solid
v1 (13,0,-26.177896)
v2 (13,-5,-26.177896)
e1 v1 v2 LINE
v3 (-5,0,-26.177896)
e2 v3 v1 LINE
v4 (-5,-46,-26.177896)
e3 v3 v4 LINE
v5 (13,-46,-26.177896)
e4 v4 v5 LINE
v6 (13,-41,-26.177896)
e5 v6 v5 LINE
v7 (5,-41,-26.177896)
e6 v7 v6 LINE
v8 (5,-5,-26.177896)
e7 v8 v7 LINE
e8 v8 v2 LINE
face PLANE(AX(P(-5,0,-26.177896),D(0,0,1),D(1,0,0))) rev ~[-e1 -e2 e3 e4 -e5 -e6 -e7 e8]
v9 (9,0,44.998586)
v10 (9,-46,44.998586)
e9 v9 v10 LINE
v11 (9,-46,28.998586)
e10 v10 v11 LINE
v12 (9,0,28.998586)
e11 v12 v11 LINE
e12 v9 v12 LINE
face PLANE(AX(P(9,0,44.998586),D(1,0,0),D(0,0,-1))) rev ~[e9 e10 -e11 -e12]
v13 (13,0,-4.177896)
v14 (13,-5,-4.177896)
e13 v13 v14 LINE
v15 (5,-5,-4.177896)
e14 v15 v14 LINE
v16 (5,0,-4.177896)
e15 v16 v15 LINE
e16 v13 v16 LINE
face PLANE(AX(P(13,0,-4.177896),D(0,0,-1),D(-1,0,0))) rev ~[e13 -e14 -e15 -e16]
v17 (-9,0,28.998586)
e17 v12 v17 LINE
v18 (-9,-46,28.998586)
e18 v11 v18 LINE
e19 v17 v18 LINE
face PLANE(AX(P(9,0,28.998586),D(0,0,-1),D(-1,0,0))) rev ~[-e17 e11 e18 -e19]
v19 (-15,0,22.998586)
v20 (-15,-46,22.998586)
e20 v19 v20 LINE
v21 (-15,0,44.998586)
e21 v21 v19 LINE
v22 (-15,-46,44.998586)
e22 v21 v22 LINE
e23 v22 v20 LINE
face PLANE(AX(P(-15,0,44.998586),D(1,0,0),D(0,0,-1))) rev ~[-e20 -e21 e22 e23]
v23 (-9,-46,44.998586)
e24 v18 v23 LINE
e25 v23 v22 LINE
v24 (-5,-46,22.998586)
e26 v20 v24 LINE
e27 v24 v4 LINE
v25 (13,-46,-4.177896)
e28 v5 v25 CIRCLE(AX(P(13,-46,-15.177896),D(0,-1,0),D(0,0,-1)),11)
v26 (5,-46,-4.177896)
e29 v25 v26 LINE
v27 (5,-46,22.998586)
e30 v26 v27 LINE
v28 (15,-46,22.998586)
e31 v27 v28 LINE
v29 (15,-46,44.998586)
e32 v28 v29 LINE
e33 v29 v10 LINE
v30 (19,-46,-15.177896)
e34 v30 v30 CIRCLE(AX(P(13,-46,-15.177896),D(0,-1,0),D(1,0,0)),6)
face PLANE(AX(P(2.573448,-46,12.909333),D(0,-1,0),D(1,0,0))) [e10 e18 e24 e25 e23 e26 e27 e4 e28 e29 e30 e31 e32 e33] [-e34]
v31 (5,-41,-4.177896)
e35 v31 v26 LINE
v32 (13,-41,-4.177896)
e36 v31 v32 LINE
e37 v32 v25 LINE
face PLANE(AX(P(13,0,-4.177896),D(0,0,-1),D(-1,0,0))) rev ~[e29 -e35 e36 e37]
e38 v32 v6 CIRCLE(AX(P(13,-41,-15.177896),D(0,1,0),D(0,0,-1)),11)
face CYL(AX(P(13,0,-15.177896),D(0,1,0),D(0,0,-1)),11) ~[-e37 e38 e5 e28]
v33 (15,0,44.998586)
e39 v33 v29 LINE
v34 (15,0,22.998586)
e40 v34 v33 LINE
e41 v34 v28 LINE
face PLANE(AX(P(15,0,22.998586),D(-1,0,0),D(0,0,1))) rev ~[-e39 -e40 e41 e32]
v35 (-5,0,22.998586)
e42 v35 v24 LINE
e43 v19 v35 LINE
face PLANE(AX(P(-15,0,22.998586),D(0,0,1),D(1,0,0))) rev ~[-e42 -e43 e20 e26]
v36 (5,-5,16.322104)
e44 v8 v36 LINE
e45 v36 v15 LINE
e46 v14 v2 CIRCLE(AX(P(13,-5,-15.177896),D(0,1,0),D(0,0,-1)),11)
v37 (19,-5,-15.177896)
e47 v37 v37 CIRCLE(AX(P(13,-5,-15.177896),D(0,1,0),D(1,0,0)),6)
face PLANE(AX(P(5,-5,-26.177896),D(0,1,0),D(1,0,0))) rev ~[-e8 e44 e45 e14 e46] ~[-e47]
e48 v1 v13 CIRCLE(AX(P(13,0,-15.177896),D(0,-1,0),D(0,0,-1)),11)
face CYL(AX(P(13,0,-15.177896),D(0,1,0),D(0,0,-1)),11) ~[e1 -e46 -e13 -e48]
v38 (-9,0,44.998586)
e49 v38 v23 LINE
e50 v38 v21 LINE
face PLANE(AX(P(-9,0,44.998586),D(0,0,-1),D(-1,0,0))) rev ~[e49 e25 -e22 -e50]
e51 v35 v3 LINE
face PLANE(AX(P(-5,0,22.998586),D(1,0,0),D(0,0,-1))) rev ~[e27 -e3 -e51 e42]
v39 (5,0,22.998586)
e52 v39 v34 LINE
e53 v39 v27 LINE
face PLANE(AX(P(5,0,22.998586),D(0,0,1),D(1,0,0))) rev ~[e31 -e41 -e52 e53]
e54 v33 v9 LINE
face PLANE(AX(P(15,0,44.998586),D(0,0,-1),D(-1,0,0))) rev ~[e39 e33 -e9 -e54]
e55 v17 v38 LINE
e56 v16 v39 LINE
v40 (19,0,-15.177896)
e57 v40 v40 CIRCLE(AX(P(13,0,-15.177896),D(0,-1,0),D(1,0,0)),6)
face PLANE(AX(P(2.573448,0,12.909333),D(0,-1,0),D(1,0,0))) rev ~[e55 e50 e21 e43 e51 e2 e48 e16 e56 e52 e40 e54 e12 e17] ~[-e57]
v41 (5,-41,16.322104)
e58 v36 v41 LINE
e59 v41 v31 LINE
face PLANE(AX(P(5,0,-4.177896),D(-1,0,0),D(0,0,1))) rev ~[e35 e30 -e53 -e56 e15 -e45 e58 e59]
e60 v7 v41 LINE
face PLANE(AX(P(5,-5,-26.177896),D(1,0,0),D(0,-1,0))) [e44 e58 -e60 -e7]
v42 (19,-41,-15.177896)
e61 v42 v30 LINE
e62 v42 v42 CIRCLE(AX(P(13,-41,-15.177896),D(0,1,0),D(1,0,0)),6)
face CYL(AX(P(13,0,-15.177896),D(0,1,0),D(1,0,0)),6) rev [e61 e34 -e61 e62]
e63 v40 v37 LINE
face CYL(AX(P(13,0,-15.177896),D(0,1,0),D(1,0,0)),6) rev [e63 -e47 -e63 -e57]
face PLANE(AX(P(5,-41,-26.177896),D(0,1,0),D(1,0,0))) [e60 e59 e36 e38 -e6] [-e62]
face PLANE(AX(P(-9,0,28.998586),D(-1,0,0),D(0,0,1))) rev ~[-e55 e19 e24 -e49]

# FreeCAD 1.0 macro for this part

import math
import FreeCAD as App
import Part
import Sketcher
from FreeCAD import Vector
Q = App.Units.Quantity


def add_polygon(sketch, points):
    """Adds a closed chain of lines whose ends are joined by coincident constraints."""
    first, n = sketch.GeometryCount, len(points)
    for a, b in zip(points, points[1:] + points[:1]):
        sketch.addGeometry(Part.LineSegment(App.Vector(*a, 0), App.Vector(*b, 0)), False)
    for i in range(n):
        sketch.addConstraint(Sketcher.Constraint("Coincident", first + i, 2, first + (i + 1) % n, 1))

doc = App.newDocument("Part")
body = doc.addObject("PartDesign::Body", "Body")

# Sketch on XZ plane
sketch1 = body.newObject("Sketcher::SketchObject", "Sketch")
sketch1.AttachmentSupport = (doc.getObject("XZ_Plane"), [""])
sketch1.MapMode = "FlatFace"
sketch1.addGeometry(Part.LineSegment(Vector(-9, 45, 0), Vector(-15, 45, 0)), False)
sketch1.addGeometry(Part.LineSegment(Vector(-15, 45, 0), Vector(-15, 23, 0)), False)
sketch1.addGeometry(Part.LineSegment(Vector(-15, 23, 0), Vector(-5, 23, 0)), False)
sketch1.addGeometry(Part.LineSegment(Vector(-5, 23, 0), Vector(-5, -26, 0)), False)
sketch1.addGeometry(Part.LineSegment(Vector(-5, -26, 0), Vector(13, -26, 0)), False)
sketch1.addGeometry(Part.ArcOfCircle(Part.Circle(Vector(13, -15, 0), Vector(0, 0, 1), 11), math.radians(-90), math.radians(90)), False)
sketch1.addGeometry(Part.LineSegment(Vector(13, -4, 0), Vector(5, -4, 0)), False)
sketch1.addGeometry(Part.LineSegment(Vector(5, -4, 0), Vector(5, 23, 0)), False)
sketch1.addGeometry(Part.LineSegment(Vector(5, 23, 0), Vector(15, 23, 0)), False)
sketch1.addGeometry(Part.LineSegment(Vector(15, 23, 0), Vector(15, 45, 0)), False)
sketch1.addGeometry(Part.LineSegment(Vector(15, 45, 0), Vector(9, 45, 0)), False)
sketch1.addGeometry(Part.LineSegment(Vector(9, 45, 0), Vector(9, 29, 0)), False)
sketch1.addGeometry(Part.LineSegment(Vector(9, 29, 0), Vector(-9, 29, 0)), False)
sketch1.addGeometry(Part.LineSegment(Vector(-9, 29, 0), Vector(-9, 45, 0)), False)
sketch1.addGeometry(Part.Circle(Vector(13, -15, 0), Vector(0, 0, 1), 6), False)
sketch1.addConstraint(Sketcher.Constraint("Coincident", 0, 2, 1, 1))
sketch1.addConstraint(Sketcher.Constraint("Coincident", 1, 2, 2, 1))
sketch1.addConstraint(Sketcher.Constraint("Coincident", 2, 2, 3, 1))
sketch1.addConstraint(Sketcher.Constraint("Coincident", 3, 2, 4, 1))
sketch1.addConstraint(Sketcher.Constraint("Tangent", 4, 2, 5, 1))
sketch1.addConstraint(Sketcher.Constraint("Tangent", 5, 2, 6, 1))
sketch1.addConstraint(Sketcher.Constraint("Coincident", 6, 2, 7, 1))
sketch1.addConstraint(Sketcher.Constraint("Coincident", 7, 2, 8, 1))
sketch1.addConstraint(Sketcher.Constraint("Coincident", 8, 2, 9, 1))
sketch1.addConstraint(Sketcher.Constraint("Coincident", 9, 2, 10, 1))
sketch1.addConstraint(Sketcher.Constraint("Coincident", 10, 2, 11, 1))
sketch1.addConstraint(Sketcher.Constraint("Coincident", 11, 2, 12, 1))
sketch1.addConstraint(Sketcher.Constraint("Coincident", 12, 2, 13, 1))
sketch1.addConstraint(Sketcher.Constraint("Coincident", 13, 2, 0, 1))
sketch1.addConstraint(Sketcher.Constraint("Horizontal", 0))
sketch1.addConstraint(Sketcher.Constraint("Vertical", 1))
sketch1.addConstraint(Sketcher.Constraint("Horizontal", 2))
sketch1.addConstraint(Sketcher.Constraint("Vertical", 3))
sketch1.addConstraint(Sketcher.Constraint("Horizontal", 4))
sketch1.addConstraint(Sketcher.Constraint("Horizontal", 6))
sketch1.addConstraint(Sketcher.Constraint("Vertical", 7))
sketch1.addConstraint(Sketcher.Constraint("Horizontal", 8))
sketch1.addConstraint(Sketcher.Constraint("Vertical", 9))
sketch1.addConstraint(Sketcher.Constraint("Horizontal", 10))
sketch1.addConstraint(Sketcher.Constraint("Vertical", 11))
sketch1.addConstraint(Sketcher.Constraint("Horizontal", 12))
sketch1.addConstraint(Sketcher.Constraint("Vertical", 13))
sketch1.addConstraint(Sketcher.Constraint("Coincident", 14, 3, 5, 3))
sketch1.addConstraint(Sketcher.Constraint("Symmetric", 2, 2, 7, 2, -2))
sketch1.addConstraint(Sketcher.Constraint("Symmetric", 0, 2, 9, 2, -2))
sketch1.addConstraint(Sketcher.Constraint("Equal", 0, 10))
sketch1.addConstraint(Sketcher.Constraint("Equal", 4, 12))
sketch1.addConstraint(Sketcher.Constraint("Diameter", 14, Q("12 mm")))
sketch1.addConstraint(Sketcher.Constraint("Radius", 5, Q("11 mm")))
sketch1.addConstraint(Sketcher.Constraint("DistanceX", 0, 2, 0, 1, Q("6 mm")))
sketch1.addConstraint(Sketcher.Constraint("DistanceX", 2, 1, 2, 2, Q("10 mm")))
sketch1.addConstraint(Sketcher.Constraint("DistanceX", 4, 1, 4, 2, Q("18 mm")))
sketch1.addConstraint(Sketcher.Constraint("DistanceY", 1, 2, 1, 1, Q("22 mm")))
sketch1.addConstraint(Sketcher.Constraint("DistanceY", 11, 2, 11, 1, Q("16 mm")))
sketch1.addConstraint(Sketcher.Constraint("DistanceY", 7, 1, 7, 2, Q("27.176482 mm")))
sketch1.addConstraint(Sketcher.Constraint("DistanceY", 5, 3, -1, 1, Q("15.177896 mm")))
pad1 = body.newObject("PartDesign::Pad", "Pad")
pad1.Profile = sketch1
pad1.Length = 46
body2 = doc.addObject("PartDesign::Body", "Body001")

# Sketch on XY plane
sketch2 = body2.newObject("Sketcher::SketchObject", "Sketch001")
sketch2.AttachmentSupport = (doc.getObject("XY_Plane001"), [""])
sketch2.MapMode = "FlatFace"
sketch2.AttachmentOffset = App.Placement(Vector(0, 0, -26.177896), App.Rotation())
add_polygon(sketch2, [(5, -41), (5, -5), (32, -5), (32, -41)])  # lines 0-3
sketch2.addConstraint(Sketcher.Constraint("Vertical", 0))
sketch2.addConstraint(Sketcher.Constraint("Horizontal", 1))
sketch2.addConstraint(Sketcher.Constraint("Vertical", 2))
sketch2.addConstraint(Sketcher.Constraint("Horizontal", 3))
sketch2.addConstraint(Sketcher.Constraint("DistanceY", 0, 1, 0, 2, Q("36 mm")))
sketch2.addConstraint(Sketcher.Constraint("DistanceX", -1, 1, 0, 2, Q("5 mm")))
sketch2.addConstraint(Sketcher.Constraint("DistanceY", 0, 2, -1, 1, Q("5 mm")))
sketch2.addConstraint(Sketcher.Constraint("DistanceX", 1, 1, 1, 2, Q("26.921937 mm")))
pad2 = body2.newObject("PartDesign::Pad", "Pad001")
pad2.Profile = sketch2
pad2.Length = 42.5
doc.recompute()

boolean = body.newObject("PartDesign::Boolean", "Boolean")
boolean.Type = "Cut"
boolean.addObjects([body2])

doc.recompute()
